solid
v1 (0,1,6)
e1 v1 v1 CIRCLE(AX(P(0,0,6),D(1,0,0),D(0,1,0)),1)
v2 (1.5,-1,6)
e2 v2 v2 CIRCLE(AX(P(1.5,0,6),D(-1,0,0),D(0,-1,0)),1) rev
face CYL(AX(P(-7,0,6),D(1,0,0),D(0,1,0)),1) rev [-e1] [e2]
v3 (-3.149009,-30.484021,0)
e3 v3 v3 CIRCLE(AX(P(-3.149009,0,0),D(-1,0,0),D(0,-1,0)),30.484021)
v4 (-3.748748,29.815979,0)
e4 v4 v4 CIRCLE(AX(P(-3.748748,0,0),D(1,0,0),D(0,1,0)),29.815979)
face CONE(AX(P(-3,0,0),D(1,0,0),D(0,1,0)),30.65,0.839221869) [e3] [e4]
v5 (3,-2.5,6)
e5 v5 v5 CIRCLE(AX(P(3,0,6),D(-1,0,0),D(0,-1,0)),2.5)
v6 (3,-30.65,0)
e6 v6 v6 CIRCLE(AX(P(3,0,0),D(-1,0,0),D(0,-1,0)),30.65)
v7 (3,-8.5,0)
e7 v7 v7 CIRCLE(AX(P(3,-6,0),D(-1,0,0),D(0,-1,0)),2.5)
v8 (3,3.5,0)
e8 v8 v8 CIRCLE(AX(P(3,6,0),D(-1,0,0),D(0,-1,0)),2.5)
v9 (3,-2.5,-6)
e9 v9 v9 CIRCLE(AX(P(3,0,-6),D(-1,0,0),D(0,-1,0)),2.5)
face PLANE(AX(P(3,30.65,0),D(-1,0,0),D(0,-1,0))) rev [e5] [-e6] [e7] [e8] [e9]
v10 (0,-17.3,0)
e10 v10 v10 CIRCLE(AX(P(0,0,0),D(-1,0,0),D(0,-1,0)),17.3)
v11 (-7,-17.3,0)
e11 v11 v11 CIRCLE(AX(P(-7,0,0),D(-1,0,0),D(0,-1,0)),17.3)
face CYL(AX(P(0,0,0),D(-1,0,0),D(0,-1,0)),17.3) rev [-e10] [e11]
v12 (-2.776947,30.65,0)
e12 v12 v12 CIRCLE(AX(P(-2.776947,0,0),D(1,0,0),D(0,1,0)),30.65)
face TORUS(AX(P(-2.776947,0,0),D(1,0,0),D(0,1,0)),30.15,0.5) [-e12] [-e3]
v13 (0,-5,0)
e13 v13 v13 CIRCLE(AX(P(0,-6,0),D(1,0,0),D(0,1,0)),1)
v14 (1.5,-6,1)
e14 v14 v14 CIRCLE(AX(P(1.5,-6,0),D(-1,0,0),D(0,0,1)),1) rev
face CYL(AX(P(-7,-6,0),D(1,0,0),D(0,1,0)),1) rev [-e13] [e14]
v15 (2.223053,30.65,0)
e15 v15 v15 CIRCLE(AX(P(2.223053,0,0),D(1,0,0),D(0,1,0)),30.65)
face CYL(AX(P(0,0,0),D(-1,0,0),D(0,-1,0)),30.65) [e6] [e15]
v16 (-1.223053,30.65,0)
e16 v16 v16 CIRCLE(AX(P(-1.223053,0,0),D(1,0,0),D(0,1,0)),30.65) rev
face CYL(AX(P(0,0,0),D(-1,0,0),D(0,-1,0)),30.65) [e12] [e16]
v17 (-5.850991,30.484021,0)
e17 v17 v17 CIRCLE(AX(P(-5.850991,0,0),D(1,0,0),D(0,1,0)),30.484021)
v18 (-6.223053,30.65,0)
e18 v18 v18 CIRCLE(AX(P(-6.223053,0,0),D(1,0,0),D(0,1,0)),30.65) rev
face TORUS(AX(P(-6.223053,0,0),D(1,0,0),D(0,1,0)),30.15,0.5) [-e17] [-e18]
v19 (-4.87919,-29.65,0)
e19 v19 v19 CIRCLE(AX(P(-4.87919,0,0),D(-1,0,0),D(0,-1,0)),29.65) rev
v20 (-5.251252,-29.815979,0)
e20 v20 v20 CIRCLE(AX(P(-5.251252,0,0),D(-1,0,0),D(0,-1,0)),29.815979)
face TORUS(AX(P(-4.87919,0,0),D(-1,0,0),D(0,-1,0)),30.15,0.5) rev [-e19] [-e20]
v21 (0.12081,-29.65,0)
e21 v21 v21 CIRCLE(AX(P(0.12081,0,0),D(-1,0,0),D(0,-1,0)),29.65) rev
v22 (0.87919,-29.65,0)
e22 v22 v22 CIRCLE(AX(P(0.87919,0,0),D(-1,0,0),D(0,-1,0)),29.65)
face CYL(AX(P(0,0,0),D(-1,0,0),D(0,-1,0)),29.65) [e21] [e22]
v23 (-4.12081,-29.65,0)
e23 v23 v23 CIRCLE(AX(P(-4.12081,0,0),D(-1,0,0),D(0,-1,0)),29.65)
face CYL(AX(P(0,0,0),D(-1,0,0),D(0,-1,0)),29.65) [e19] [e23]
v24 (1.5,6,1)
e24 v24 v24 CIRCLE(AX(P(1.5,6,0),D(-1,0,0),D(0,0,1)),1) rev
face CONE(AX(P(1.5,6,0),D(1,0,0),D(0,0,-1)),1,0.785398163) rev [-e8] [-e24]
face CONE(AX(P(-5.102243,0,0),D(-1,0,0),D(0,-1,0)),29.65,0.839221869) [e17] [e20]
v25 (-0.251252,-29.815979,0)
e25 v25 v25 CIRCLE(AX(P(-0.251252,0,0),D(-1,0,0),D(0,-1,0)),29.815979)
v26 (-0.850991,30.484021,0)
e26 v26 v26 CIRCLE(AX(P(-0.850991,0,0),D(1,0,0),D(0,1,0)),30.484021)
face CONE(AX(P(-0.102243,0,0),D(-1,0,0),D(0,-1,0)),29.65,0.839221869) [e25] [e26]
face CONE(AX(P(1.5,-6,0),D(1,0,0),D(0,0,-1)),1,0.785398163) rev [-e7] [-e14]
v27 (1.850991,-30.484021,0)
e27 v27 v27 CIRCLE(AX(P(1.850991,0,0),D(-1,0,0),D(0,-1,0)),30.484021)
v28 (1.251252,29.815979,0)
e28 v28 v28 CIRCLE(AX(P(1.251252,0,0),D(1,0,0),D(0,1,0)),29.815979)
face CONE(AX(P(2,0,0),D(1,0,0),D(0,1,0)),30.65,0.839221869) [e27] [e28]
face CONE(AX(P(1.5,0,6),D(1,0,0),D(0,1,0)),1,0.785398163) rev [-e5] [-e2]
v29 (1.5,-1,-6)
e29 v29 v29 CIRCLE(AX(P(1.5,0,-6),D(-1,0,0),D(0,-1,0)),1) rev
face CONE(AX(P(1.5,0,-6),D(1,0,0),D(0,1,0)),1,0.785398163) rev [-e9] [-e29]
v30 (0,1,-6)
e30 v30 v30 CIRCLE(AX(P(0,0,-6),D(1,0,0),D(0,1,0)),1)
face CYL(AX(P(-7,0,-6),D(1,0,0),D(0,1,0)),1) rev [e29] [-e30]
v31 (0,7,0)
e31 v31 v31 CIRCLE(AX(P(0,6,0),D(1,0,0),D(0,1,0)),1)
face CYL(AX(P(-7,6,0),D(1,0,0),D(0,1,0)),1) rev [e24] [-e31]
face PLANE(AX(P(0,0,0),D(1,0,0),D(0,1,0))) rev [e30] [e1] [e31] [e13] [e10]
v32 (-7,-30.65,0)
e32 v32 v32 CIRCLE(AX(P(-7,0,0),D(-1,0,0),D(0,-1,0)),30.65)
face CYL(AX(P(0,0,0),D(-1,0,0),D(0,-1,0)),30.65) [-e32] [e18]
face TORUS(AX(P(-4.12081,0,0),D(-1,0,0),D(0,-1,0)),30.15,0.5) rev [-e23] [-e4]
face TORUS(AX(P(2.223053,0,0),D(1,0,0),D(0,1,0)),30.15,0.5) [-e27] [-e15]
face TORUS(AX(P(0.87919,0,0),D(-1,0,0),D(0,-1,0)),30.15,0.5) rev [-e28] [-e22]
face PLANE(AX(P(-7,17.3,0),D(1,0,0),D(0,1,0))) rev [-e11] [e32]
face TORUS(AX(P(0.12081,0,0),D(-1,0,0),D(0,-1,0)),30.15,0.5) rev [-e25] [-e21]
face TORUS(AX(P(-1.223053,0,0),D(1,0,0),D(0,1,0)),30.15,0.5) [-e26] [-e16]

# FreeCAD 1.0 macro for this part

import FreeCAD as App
import Part
import Sketcher

V = App.Vector


def edges_at(feature, points):
    """Names of the edges that pass closest to the given points."""
    edges = feature.Shape.Edges
    near = lambda p: min(range(len(edges)), key=lambda i: edges[i].distToShape(Part.Vertex(*p))[0])
    return sorted({f"Edge{near(p) + 1}" for p in points})

doc = App.newDocument("Part")
params = doc.addObject("Spreadsheet::Sheet", "Params")
for row, (alias, value) in enumerate([
    ("sketch1_width", "3 mm"),
    ("sketch1_width2", "1 mm"),
    ("sketch1_width3", "2 mm"),
    ("sketch1_height", "17.3 mm"),
    ("sketch1_height2", "30.65 mm"),
    ("revolution_angle", "360 deg"),
    ("sketch2_diameter", "2 mm"),
    ("pocket1_length", "10 mm"),
    ("chamfer_size", "1.5 mm"),
    ("fillet_radius", "0.5 mm"),
], start=1):
    params.set(f"A{row}", alias)
    params.set(f"B{row}", "=" + value)
    params.setAlias(f"B{row}", alias)

body = doc.addObject("PartDesign::Body", "Body")

sketch1 = body.newObject("Sketcher::SketchObject", "Sketch")
sketch1.AttachmentSupport = (doc.getObject("XY_Plane"), [""])
sketch1.MapMode = "FlatFace"
sketch1.addGeometry(Part.LineSegment(V(0, 17.3, 0), V(0, 0, 0)), False)
sketch1.addGeometry(Part.LineSegment(V(0, 0, 0), V(3, 0, 0)), False)
sketch1.addGeometry(Part.LineSegment(V(3, 0, 0), V(3, 30.6, 0)), False)
sketch1.addGeometry(Part.LineSegment(V(3, 30.6, 0), V(2, 30.6, 0)), False)
sketch1.addGeometry(Part.LineSegment(V(2, 30.6, 0), V(1.1, 29.6, 0)), False)
sketch1.addGeometry(Part.LineSegment(V(1.1, 29.6, 0), V(-0.1, 29.6, 0)), False)
sketch1.addGeometry(Part.LineSegment(V(-0.1, 29.6, 0), V(-1, 30.6, 0)), False)
sketch1.addGeometry(Part.LineSegment(V(-1, 30.6, 0), V(-3, 30.6, 0)), False)
sketch1.addGeometry(Part.LineSegment(V(-3, 30.6, 0), V(-3.9, 29.6, 0)), False)
sketch1.addGeometry(Part.LineSegment(V(-3.9, 29.6, 0), V(-5.1, 29.6, 0)), False)
sketch1.addGeometry(Part.LineSegment(V(-5.1, 29.6, 0), V(-6, 30.6, 0)), False)
sketch1.addGeometry(Part.LineSegment(V(-6, 30.6, 0), V(-7, 30.6, 0)), False)
sketch1.addGeometry(Part.LineSegment(V(-7, 30.6, 0), V(-7, 17.3, 0)), False)
sketch1.addGeometry(Part.LineSegment(V(-7, 17.3, 0), V(0, 17.3, 0)), False)
sketch1.addConstraint(Sketcher.Constraint("Coincident", 0, 2, 1, 1))
sketch1.addConstraint(Sketcher.Constraint("Coincident", 1, 2, 2, 1))
sketch1.addConstraint(Sketcher.Constraint("Coincident", 2, 2, 3, 1))
sketch1.addConstraint(Sketcher.Constraint("Coincident", 3, 2, 4, 1))
sketch1.addConstraint(Sketcher.Constraint("Coincident", 4, 2, 5, 1))
sketch1.addConstraint(Sketcher.Constraint("Coincident", 5, 2, 6, 1))
sketch1.addConstraint(Sketcher.Constraint("Coincident", 6, 2, 7, 1))
sketch1.addConstraint(Sketcher.Constraint("Coincident", 7, 2, 8, 1))
sketch1.addConstraint(Sketcher.Constraint("Coincident", 8, 2, 9, 1))
sketch1.addConstraint(Sketcher.Constraint("Coincident", 9, 2, 10, 1))
sketch1.addConstraint(Sketcher.Constraint("Coincident", 10, 2, 11, 1))
sketch1.addConstraint(Sketcher.Constraint("Coincident", 11, 2, 12, 1))
sketch1.addConstraint(Sketcher.Constraint("Coincident", 12, 2, 13, 1))
sketch1.addConstraint(Sketcher.Constraint("Coincident", 13, 2, 0, 1))
sketch1.addConstraint(Sketcher.Constraint("Vertical", 0))
sketch1.addConstraint(Sketcher.Constraint("Horizontal", 1))
sketch1.addConstraint(Sketcher.Constraint("Vertical", 2))
sketch1.addConstraint(Sketcher.Constraint("Horizontal", 3))
sketch1.addConstraint(Sketcher.Constraint("Horizontal", 5))
sketch1.addConstraint(Sketcher.Constraint("Horizontal", 7))
sketch1.addConstraint(Sketcher.Constraint("Horizontal", 9))
sketch1.addConstraint(Sketcher.Constraint("Horizontal", 11))
sketch1.addConstraint(Sketcher.Constraint("Vertical", 12))
sketch1.addConstraint(Sketcher.Constraint("Horizontal", 13))
sketch1.addConstraint(Sketcher.Constraint("Coincident", 0, 2, -1, 1))
sketch1.addConstraint(Sketcher.Constraint("Symmetric", 2, 2, 7, 2, -2))
sketch1.addConstraint(Sketcher.Constraint("Parallel", 4, 8))
sketch1.addConstraint(Sketcher.Constraint("Parallel", 6, 10))
sketch1.addConstraint(Sketcher.Constraint("Horizontal", 5, 2, 8, 2))
sketch1.addConstraint(Sketcher.Constraint("Horizontal", 7, 2, 10, 2))
sketch1.addConstraint(Sketcher.Constraint("Equal", 5, 9))
sketch1.addConstraint(Sketcher.Constraint("Equal", 3, 11))
sketch1.addConstraint(Sketcher.Constraint("Equal", 4, 6))
sketch1.addConstraint(Sketcher.Constraint("DistanceX", 1, 1, 1, 2, 3.0))
sketch1.addConstraint(Sketcher.Constraint("DistanceX", 3, 2, 3, 1, 1.0))
sketch1.addConstraint(Sketcher.Constraint("DistanceX", 7, 2, 7, 1, 2.0))
sketch1.addConstraint(Sketcher.Constraint("DistanceY", 0, 2, 0, 1, 17.3))
sketch1.addConstraint(Sketcher.Constraint("DistanceY", 4, 2, 3, 2, 1.0))
sketch1.addConstraint(Sketcher.Constraint("DistanceY", 2, 1, 2, 2, 30.65))
sketch1.addConstraint(Sketcher.Constraint("DistanceX", 5, 2, 5, 1, 1.204486))
sketch1.setExpression("Constraints[33]", "Params.sketch1_width")
sketch1.setExpression("Constraints[34]", "Params.sketch1_width2")
sketch1.setExpression("Constraints[35]", "Params.sketch1_width3")
sketch1.setExpression("Constraints[36]", "Params.sketch1_height")
sketch1.setExpression("Constraints[38]", "Params.sketch1_height2")
revolution = body.newObject("PartDesign::Revolution", "Revolution")
revolution.Profile = sketch1
revolution.ReferenceAxis = (sketch1, ["H_Axis"])
revolution.setExpression("Angle", "Params.revolution_angle")

sketch2 = body.newObject("Sketcher::SketchObject", "Sketch001")
sketch2.AttachmentSupport = (doc.getObject("YZ_Plane"), [""])
sketch2.MapMode = "FlatFace"
sketch2.AttachmentOffset = App.Placement(V(0, 0, 3), App.Rotation())
sketch2.addGeometry(Part.Circle(V(6, 0, 0), V(0, 0, 1), 1), False)
sketch2.addGeometry(Part.Circle(V(0, -6, 0), V(0, 0, 1), 1), False)
sketch2.addGeometry(Part.Circle(V(-6, 0, 0), V(0, 0, 1), 1), False)
sketch2.addGeometry(Part.Circle(V(0, 6, 0), V(0, 0, 1), 1), False)
sketch2.addConstraint(Sketcher.Constraint("Equal", 0, 1))
sketch2.addConstraint(Sketcher.Constraint("Equal", 1, 2))
sketch2.addConstraint(Sketcher.Constraint("Equal", 2, 3))
sketch2.addConstraint(Sketcher.Constraint("Symmetric", 0, 3, 2, 3, -1, 1))
sketch2.addConstraint(Sketcher.Constraint("Symmetric", 1, 3, 3, 3, -1, 1))
sketch2.addConstraint(Sketcher.Constraint("PointOnObject", 0, 3, -1))
sketch2.addConstraint(Sketcher.Constraint("PointOnObject", 1, 3, -2))
sketch2.addConstraint(Sketcher.Constraint("Diameter", 0, 2.0))
sketch2.addConstraint(Sketcher.Constraint("DistanceX", -1, 1, 0, 3, 6.0))
sketch2.addConstraint(Sketcher.Constraint("DistanceY", 1, 3, -1, 1, 6.0))
sketch2.setExpression("Constraints[7]", "Params.sketch2_diameter")
pocket1 = body.newObject("PartDesign::Pocket", "Pocket")
pocket1.Profile = sketch2
pocket1.setExpression("Length", "Params.pocket1_length")
doc.recompute()

chamfer = body.newObject("PartDesign::Chamfer", "Chamfer")
chamfer.Base = (pocket1, edges_at(pocket1, [
    (3, 6, 1),
    (3, 0, -5),
    (3, -6, 1),
    (3, 0, 7),
]))
chamfer.setExpression("Size", "Params.chamfer_size")
doc.recompute()

fillet = body.newObject("PartDesign::Fillet", "Fillet")
fillet.Base = (chamfer, edges_at(chamfer, [
    (2, -30.65, 0),
    (1.102, -29.65, 0),
    (-0.102, -29.65, 0),
    (-1, -30.65, 0),
    (-3, -30.65, 0),
    (-3.898, -29.65, 0),
    (-5.102, -29.65, 0),
    (-6, -30.65, 0),
]))
fillet.setExpression("Radius", "Params.fillet_radius")

doc.recompute()
